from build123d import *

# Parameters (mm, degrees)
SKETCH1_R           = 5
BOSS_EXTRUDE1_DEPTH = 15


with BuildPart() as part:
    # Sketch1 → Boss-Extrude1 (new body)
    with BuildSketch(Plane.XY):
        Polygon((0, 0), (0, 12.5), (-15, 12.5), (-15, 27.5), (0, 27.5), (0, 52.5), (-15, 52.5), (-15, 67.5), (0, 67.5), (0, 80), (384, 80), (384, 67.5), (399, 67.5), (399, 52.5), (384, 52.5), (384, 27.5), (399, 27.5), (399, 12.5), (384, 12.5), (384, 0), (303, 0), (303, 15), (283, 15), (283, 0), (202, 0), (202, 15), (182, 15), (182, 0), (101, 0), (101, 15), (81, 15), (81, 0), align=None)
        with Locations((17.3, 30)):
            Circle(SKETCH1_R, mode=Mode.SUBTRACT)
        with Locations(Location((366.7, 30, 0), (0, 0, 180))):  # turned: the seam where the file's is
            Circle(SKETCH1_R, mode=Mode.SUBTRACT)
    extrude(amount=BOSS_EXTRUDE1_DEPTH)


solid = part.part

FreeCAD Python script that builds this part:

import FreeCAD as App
import Part
import Sketcher

V = App.Vector
Q = App.Units.Quantity


def add_polygon(sketch, points):
    """Adds a closed chain of lines whose ends are joined by coincident constraints."""
    first, n = sketch.GeometryCount, len(points)
    for a, b in zip(points, points[1:] + points[:1]):
        sketch.addGeometry(Part.LineSegment(App.Vector(*a, 0), App.Vector(*b, 0)), False)
    for i in range(n):
        sketch.addConstraint(Sketcher.Constraint("Coincident", first + i, 2, first + (i + 1) % n, 1))

doc = App.newDocument("Part")
body = doc.addObject("PartDesign::Body", "Body")

sketch1 = doc.addObject("Sketcher::SketchObject", "Sketch")
body.addObject(sketch1)
sketch1.AttachmentSupport = (doc.XY_Plane, [""])
sketch1.MapMode = "FlatFace"
add_polygon(sketch1, [(0, 12.5), (0, 0), (81, 0), (81, 15), (101, 15), (101, 0), (182, 0), (182, 15), (202, 15), (202, 0), (283, 0), (283, 15), (303, 15), (303, 0), (384, 0), (384, 12.5), (399, 12.5), (399, 27.5), (384, 27.5), (384, 52.5), (399, 52.5), (399, 67.5), (384, 67.5), (384, 80), (0, 80), (0, 67.5), (-15, 67.5), (-15, 52.5), (0, 52.5), (0, 27.5), (-15, 27.5), (-15, 12.5)])
sketch1.addGeometry(Part.Circle(V(366.7, 30, 0), V(0, 0, 1), 5), False)
sketch1.addGeometry(Part.Circle(V(17.3, 30, 0), V(0, 0, 1), 5), False)
sketch1.addConstraint([
    Sketcher.Constraint("Vertical", 0),
    Sketcher.Constraint("Horizontal", 1),
    Sketcher.Constraint("Vertical", 2),
    Sketcher.Constraint("Horizontal", 3),
    Sketcher.Constraint("Vertical", 4),
    Sketcher.Constraint("Horizontal", 5),
    Sketcher.Constraint("Vertical", 6),
    Sketcher.Constraint("Horizontal", 7),
    Sketcher.Constraint("Vertical", 8),
    Sketcher.Constraint("Horizontal", 9),
    Sketcher.Constraint("Vertical", 10),
    Sketcher.Constraint("Horizontal", 11),
    Sketcher.Constraint("Vertical", 12),
    Sketcher.Constraint("Horizontal", 13),
    Sketcher.Constraint("Vertical", 14),
    Sketcher.Constraint("Horizontal", 15),
    Sketcher.Constraint("Vertical", 16),
    Sketcher.Constraint("Horizontal", 17),
    Sketcher.Constraint("Vertical", 18),
    Sketcher.Constraint("Horizontal", 19),
    Sketcher.Constraint("Vertical", 20),
    Sketcher.Constraint("Horizontal", 21),
    Sketcher.Constraint("Vertical", 22),
    Sketcher.Constraint("Horizontal", 23),
    Sketcher.Constraint("Vertical", 24),
    Sketcher.Constraint("Horizontal", 25),
    Sketcher.Constraint("Vertical", 26),
    Sketcher.Constraint("Horizontal", 27),
    Sketcher.Constraint("Vertical", 28),
    Sketcher.Constraint("Horizontal", 29),
    Sketcher.Constraint("Vertical", 30),
    Sketcher.Constraint("Horizontal", 31),
    Sketcher.Constraint("Coincident", 0, 2, -1, 1),
    Sketcher.Constraint("Equal", 32, 33),
    Sketcher.Constraint("PointOnObject", 4, 2, -1),
    Sketcher.Constraint("PointOnObject", 8, 2, -1),
    Sketcher.Constraint("PointOnObject", 12, 2, -1),
    Sketcher.Constraint("PointOnObject", 23, 2, -2),
    Sketcher.Constraint("PointOnObject", 27, 2, -2),
    Sketcher.Constraint("Horizontal", 32, 3, 33, 3),
    Sketcher.Constraint("Horizontal", 3, 2, 6, 2),
    Sketcher.Constraint("Horizontal", 7, 2, 10, 2),
    Sketcher.Constraint("Horizontal", 21, 2, 24, 2),
    Sketcher.Constraint("Horizontal", 19, 2, 26, 2),
    Sketcher.Constraint("Horizontal", 17, 2, 28, 2),
    Sketcher.Constraint("Horizontal", 15, 2, 30, 2),
    Sketcher.Constraint("Vertical", 14, 2, 17, 2),
    Sketcher.Constraint("Vertical", 16, 2, 19, 2),
    Sketcher.Constraint("Vertical", 18, 2, 21, 2),
    Sketcher.Constraint("Vertical", 26, 2, 29, 2),
    Sketcher.Constraint("Equal", 1, 5),
    Sketcher.Constraint("Equal", 3, 7),
    Sketcher.Constraint("Equal", 5, 9),
    Sketcher.Constraint("Equal", 7, 11),
    Sketcher.Constraint("Equal", 9, 13),
    Sketcher.Constraint("Equal", 21, 25),
    Sketcher.Constraint("Equal", 31, 2),
    Sketcher.Constraint("Equal", 12, 16),
    Sketcher.Constraint("Equal", 16, 20),
    Sketcher.Constraint("Equal", 14, 22),
    Sketcher.Constraint("Diameter", 32, Q("10 mm")),
    Sketcher.Constraint("DistanceX", 1, 1, 1, 2, Q("81 mm")),
    Sketcher.Constraint("DistanceX", 3, 1, 3, 2, Q("20 mm")),
    Sketcher.Constraint("DistanceX", 15, 1, 15, 2, Q("15 mm")),
    Sketcher.Constraint("DistanceY", 18, 1, 18, 2, Q("25 mm")),
    Sketcher.Constraint("DistanceY", 0, 2, 0, 1, Q("12.5 mm")),
    Sketcher.Constraint("DistanceY", -1, 1, 32, 3, Q("30 mm")),
    Sketcher.Constraint("DistanceX", -1, 1, 32, 3, Q("366.7 mm")),
    Sketcher.Constraint("DistanceX", -1, 1, 33, 3, Q("17.3 mm")),
])
pad1 = doc.addObject("PartDesign::Pad", "Pad")
body.addObject(pad1)
pad1.Profile = sketch1
pad1.Length = 15

doc.recompute()
